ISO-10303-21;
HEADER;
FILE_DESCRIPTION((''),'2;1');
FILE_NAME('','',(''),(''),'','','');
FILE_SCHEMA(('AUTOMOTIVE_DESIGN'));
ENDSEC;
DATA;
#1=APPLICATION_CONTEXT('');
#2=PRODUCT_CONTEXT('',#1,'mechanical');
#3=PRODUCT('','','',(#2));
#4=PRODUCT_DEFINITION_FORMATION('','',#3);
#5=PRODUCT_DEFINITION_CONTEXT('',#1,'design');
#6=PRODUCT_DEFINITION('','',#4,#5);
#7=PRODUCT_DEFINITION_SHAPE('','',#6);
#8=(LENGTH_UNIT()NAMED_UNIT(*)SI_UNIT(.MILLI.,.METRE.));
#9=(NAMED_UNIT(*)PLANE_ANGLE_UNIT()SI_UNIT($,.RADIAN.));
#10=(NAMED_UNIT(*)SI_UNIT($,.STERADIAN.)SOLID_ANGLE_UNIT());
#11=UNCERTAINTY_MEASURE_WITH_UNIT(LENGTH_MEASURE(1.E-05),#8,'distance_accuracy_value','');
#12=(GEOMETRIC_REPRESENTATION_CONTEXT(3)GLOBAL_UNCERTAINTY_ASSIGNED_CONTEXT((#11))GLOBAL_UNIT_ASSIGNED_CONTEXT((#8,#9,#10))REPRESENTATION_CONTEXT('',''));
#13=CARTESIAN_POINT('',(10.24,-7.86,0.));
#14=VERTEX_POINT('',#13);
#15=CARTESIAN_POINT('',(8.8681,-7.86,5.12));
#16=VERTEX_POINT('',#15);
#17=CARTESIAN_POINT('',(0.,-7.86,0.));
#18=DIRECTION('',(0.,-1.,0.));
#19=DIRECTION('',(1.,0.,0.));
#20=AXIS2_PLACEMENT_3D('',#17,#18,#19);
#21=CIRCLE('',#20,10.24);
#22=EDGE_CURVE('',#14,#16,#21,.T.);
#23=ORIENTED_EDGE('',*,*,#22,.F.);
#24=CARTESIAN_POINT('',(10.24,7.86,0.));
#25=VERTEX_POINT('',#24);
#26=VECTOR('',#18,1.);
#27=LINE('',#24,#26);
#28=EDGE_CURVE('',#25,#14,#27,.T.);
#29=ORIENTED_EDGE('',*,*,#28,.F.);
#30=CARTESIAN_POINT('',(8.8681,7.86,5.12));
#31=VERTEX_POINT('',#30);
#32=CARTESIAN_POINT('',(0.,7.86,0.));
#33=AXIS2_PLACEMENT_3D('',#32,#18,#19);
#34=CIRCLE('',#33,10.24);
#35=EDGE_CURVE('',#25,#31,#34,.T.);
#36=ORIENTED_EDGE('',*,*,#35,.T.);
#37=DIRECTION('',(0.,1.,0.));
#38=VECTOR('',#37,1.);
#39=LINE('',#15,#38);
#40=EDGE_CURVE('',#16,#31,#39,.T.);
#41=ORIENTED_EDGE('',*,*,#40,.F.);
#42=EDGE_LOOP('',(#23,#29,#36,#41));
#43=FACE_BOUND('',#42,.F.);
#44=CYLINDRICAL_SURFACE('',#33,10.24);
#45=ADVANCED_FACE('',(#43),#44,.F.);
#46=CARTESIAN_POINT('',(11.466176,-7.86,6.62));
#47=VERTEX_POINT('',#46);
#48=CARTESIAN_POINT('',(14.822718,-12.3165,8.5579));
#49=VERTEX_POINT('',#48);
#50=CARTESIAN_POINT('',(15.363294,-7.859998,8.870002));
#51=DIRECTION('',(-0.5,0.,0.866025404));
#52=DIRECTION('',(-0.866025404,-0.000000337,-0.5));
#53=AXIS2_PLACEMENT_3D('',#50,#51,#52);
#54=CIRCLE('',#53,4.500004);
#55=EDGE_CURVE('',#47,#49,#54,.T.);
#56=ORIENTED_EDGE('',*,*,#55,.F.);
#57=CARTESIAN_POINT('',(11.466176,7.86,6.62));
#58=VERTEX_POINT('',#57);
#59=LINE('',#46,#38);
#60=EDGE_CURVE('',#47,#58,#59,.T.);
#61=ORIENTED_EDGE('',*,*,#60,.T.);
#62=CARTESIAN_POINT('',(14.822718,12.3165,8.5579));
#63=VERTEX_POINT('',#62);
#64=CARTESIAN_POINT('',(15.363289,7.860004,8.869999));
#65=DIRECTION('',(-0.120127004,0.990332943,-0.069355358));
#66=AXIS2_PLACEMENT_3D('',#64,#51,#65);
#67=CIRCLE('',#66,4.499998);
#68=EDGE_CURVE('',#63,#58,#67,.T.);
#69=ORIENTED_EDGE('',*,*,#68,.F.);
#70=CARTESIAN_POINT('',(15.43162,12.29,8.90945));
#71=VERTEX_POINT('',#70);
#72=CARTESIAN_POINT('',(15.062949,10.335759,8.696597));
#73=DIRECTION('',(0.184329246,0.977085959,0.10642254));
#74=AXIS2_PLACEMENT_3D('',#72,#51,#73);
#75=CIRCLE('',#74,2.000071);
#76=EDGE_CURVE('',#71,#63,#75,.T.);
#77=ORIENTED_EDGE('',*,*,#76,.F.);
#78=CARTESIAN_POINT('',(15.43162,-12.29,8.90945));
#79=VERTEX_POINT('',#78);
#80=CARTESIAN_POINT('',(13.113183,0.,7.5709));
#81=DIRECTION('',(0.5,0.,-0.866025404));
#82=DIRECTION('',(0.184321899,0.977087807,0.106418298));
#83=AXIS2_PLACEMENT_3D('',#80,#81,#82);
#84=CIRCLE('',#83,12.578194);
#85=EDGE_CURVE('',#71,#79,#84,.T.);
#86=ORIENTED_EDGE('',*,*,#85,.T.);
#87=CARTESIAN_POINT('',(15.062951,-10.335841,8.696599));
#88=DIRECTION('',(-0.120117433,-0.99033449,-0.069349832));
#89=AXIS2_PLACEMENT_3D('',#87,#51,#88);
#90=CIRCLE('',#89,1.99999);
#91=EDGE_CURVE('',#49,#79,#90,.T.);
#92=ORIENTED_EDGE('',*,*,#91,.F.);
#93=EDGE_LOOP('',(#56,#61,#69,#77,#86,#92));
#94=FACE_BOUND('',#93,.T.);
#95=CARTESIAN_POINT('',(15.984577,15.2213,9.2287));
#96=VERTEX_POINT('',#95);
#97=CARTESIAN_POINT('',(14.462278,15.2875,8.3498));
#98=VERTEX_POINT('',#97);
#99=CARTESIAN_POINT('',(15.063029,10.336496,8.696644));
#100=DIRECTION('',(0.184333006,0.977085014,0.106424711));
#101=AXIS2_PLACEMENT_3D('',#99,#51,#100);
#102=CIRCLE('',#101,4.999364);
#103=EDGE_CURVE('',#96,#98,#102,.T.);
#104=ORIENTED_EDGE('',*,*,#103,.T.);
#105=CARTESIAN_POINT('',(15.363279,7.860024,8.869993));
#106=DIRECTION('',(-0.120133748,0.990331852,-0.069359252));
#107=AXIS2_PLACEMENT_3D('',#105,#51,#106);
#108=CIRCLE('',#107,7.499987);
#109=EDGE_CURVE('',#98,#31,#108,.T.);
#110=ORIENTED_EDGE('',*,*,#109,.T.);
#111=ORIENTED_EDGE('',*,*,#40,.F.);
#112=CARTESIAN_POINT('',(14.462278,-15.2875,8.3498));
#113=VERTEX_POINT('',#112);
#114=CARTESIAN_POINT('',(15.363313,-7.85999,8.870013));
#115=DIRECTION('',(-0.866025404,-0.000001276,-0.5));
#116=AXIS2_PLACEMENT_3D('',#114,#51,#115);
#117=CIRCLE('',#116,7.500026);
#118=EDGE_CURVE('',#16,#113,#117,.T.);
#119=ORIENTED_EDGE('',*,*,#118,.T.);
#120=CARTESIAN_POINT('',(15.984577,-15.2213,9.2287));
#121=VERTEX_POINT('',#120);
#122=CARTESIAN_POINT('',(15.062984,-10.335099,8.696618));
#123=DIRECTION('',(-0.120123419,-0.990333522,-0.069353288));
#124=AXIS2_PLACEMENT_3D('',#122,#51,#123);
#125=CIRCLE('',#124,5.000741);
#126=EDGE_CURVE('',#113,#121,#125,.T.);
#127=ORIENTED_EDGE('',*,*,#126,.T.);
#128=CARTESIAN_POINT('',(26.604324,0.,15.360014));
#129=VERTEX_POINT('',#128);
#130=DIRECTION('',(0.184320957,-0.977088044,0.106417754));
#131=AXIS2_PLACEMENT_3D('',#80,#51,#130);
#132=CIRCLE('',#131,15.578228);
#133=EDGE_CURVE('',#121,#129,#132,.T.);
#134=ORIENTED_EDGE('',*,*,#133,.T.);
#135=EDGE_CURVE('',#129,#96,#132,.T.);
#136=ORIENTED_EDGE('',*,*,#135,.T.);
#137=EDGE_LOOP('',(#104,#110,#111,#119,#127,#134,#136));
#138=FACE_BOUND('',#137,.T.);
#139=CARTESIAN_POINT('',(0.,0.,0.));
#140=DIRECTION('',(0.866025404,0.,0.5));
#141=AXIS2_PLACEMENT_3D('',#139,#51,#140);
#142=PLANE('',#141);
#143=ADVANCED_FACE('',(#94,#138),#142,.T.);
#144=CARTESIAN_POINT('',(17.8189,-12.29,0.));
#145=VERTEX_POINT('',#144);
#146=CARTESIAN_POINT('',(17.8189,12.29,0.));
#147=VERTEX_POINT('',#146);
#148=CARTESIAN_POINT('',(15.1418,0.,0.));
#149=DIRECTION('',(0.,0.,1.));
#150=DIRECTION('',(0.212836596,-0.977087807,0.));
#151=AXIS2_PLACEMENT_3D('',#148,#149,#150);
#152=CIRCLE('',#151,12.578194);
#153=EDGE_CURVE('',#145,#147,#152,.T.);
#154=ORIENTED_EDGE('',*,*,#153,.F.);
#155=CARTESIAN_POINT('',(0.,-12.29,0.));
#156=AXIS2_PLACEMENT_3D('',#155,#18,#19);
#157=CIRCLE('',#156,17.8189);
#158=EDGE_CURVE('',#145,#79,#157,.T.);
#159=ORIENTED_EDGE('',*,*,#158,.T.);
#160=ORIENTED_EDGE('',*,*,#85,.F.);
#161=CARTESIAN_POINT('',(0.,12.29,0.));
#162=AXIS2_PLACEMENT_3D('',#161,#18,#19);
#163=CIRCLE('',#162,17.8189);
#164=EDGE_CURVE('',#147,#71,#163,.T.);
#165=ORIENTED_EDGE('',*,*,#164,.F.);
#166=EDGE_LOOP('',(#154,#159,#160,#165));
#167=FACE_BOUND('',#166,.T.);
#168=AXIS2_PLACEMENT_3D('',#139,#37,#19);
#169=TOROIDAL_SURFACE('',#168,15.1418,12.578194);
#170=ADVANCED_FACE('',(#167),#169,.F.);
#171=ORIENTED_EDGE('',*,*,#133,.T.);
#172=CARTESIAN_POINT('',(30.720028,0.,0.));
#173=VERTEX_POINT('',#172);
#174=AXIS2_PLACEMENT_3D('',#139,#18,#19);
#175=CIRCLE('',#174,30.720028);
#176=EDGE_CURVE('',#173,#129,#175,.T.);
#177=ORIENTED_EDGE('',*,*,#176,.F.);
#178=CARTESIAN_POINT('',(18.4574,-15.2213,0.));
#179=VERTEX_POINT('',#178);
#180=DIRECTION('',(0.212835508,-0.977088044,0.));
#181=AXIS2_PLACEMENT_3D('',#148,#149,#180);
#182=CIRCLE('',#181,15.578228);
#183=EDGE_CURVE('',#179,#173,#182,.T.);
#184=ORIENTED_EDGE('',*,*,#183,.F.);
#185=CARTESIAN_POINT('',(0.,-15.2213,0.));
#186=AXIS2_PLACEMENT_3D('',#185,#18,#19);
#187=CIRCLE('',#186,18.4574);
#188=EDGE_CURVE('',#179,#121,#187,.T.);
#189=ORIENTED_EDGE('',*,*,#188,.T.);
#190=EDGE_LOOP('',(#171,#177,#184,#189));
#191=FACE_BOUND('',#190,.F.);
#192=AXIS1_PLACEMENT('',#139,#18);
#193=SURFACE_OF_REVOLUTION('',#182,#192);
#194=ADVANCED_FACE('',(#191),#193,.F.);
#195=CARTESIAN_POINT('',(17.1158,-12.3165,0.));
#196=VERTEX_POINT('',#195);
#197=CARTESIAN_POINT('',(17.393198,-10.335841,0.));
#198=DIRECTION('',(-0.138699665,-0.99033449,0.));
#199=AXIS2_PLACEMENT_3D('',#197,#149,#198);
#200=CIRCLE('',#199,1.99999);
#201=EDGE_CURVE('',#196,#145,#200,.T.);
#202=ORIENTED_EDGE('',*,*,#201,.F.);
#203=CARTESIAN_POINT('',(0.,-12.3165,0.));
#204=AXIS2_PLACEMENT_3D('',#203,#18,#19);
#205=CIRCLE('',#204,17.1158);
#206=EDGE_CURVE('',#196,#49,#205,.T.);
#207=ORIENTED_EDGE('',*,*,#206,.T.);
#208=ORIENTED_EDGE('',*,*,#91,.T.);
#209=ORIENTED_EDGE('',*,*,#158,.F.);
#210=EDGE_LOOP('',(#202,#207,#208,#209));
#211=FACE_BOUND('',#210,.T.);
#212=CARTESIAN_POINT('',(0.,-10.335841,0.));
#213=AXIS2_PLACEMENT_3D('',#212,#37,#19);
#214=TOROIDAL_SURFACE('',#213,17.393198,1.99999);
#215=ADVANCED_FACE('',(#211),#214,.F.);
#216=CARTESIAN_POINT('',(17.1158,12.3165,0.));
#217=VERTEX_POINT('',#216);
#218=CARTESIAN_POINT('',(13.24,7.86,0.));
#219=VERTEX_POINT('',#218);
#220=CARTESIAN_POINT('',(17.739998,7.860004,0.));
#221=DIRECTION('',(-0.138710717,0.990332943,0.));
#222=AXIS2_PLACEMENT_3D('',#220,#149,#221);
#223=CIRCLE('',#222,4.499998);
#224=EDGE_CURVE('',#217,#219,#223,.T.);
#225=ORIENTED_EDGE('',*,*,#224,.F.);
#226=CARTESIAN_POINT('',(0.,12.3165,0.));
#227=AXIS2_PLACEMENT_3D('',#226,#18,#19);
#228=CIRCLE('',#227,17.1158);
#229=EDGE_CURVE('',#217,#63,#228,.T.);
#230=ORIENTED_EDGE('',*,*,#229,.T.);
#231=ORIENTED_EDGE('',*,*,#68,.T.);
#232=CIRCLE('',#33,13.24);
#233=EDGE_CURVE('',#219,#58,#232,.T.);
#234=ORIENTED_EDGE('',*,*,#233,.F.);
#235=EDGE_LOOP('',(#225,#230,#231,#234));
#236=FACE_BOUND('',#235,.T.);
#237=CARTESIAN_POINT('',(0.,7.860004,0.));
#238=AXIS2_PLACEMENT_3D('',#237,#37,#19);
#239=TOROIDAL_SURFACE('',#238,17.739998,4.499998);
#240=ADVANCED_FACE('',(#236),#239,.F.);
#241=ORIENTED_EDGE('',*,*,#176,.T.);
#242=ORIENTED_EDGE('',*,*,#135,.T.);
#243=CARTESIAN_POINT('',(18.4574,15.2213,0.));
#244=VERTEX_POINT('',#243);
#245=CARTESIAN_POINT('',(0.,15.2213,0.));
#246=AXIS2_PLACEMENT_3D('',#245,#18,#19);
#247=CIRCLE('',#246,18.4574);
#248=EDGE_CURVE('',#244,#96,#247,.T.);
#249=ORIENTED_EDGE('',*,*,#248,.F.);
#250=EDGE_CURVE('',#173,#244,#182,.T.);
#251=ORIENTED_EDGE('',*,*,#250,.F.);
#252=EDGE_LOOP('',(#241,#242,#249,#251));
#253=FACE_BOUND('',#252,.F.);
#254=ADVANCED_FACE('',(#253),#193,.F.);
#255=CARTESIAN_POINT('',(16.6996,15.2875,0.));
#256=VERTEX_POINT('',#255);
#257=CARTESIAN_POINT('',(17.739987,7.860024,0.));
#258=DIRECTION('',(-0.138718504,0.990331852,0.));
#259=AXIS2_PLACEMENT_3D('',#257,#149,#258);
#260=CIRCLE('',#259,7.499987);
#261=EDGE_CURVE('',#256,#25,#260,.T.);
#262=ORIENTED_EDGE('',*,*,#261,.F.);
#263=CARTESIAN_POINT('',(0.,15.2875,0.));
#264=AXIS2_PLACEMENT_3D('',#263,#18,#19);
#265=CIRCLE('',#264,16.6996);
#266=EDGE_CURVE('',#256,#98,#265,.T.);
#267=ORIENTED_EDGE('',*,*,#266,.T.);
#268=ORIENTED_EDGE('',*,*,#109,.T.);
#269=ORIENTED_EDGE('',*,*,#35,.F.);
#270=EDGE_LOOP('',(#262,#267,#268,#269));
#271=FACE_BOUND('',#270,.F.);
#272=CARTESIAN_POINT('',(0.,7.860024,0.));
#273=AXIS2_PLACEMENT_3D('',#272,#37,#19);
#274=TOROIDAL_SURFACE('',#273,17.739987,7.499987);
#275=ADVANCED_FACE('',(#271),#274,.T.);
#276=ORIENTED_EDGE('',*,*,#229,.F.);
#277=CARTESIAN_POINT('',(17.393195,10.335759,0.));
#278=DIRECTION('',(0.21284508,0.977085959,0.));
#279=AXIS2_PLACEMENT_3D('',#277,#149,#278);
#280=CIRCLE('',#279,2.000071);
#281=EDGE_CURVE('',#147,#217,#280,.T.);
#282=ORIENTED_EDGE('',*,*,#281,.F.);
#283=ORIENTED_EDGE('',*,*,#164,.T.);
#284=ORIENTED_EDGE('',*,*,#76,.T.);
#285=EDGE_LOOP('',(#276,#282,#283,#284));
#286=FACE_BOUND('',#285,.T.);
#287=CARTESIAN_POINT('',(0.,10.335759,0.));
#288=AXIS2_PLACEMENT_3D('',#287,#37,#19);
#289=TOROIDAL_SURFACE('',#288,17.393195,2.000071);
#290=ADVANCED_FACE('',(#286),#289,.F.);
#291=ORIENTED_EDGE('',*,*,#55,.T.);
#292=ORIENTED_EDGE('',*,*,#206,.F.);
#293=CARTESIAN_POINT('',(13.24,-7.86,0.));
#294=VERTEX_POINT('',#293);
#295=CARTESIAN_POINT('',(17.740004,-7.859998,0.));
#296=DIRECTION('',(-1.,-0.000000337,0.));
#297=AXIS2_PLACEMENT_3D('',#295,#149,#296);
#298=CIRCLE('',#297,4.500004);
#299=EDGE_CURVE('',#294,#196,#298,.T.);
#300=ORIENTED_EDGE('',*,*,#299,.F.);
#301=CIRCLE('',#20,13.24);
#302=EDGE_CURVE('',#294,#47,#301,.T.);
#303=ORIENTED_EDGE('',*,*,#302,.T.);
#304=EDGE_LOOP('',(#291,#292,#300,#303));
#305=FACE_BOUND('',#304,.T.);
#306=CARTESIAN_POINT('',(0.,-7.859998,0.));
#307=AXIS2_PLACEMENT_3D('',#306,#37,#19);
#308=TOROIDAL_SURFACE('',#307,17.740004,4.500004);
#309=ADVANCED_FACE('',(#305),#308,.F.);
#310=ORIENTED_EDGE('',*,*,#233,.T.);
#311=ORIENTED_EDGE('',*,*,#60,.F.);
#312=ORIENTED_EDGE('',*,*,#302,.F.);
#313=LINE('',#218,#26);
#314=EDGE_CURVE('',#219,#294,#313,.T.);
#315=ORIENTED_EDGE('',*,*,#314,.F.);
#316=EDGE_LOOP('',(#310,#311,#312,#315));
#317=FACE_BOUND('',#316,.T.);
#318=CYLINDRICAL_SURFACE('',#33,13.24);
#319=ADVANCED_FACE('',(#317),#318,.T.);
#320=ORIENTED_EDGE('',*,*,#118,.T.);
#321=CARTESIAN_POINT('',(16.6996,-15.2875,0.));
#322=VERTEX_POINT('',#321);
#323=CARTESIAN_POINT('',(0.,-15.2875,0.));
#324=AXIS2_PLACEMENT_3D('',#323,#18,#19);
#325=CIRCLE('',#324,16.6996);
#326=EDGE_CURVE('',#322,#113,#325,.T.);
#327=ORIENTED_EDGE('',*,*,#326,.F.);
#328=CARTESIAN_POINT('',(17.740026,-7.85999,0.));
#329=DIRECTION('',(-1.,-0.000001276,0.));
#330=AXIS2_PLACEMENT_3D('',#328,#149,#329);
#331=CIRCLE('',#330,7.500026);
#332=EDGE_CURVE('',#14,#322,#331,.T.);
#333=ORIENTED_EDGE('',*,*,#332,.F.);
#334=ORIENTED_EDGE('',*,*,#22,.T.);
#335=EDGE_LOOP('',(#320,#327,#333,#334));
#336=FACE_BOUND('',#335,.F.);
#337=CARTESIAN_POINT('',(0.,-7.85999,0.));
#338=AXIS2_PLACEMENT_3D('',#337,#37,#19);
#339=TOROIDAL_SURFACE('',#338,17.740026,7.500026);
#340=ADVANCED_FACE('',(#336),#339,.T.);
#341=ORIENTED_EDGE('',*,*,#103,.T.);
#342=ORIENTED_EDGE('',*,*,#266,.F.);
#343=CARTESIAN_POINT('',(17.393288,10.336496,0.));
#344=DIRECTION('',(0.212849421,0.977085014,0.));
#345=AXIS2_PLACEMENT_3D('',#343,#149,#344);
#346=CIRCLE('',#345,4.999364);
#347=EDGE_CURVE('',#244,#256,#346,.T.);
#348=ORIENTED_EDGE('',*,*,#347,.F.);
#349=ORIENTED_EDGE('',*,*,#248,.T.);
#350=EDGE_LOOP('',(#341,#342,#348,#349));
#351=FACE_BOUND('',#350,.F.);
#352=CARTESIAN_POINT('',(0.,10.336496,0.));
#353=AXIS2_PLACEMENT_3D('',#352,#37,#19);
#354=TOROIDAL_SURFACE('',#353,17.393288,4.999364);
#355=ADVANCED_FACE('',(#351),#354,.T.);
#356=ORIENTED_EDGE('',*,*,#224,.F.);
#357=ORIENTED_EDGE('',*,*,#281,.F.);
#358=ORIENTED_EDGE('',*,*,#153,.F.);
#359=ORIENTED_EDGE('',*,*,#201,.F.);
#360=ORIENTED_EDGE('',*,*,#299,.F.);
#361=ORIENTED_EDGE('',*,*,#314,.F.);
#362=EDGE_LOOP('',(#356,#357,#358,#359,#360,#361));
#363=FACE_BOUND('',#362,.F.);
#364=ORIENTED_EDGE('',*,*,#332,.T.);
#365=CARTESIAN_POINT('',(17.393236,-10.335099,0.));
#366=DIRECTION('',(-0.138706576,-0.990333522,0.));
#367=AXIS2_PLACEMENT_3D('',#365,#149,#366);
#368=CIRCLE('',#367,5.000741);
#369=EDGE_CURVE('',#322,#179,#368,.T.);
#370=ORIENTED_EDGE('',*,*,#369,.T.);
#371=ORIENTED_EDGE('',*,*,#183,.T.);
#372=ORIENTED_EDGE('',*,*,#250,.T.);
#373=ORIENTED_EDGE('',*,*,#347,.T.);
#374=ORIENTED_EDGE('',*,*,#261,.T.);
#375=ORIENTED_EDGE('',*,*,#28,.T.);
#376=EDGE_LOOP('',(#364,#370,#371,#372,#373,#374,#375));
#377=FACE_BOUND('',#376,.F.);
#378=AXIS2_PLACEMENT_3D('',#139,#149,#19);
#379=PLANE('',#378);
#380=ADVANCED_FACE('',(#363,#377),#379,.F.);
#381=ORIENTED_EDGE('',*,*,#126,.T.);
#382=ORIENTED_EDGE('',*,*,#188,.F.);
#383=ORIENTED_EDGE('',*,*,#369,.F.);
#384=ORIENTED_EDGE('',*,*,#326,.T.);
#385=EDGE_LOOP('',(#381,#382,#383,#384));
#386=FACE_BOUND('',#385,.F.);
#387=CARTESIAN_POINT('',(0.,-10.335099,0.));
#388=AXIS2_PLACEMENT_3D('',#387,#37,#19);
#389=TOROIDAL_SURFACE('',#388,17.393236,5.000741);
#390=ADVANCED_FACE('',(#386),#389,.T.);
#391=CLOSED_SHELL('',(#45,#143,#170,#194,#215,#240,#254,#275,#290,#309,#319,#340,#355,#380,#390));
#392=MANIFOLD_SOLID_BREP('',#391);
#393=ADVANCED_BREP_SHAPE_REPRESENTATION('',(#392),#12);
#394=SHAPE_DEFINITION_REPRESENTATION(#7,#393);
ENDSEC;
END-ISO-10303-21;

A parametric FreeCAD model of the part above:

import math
import FreeCAD as App
import Part
import Sketcher
from FreeCAD import Vector
Q = App.Units.Quantity

doc = App.newDocument("Part")
body = doc.addObject("PartDesign::Body", "Body")

sketch1 = body.newObject("Sketcher::SketchObject", "Sketch")
sketch1.AttachmentSupport = (doc.getObject("XY_Plane"), [""])
sketch1.MapMode = "FlatFace"
sketch1.addGeometry([
    Part.ArcOfCircle(Part.Circle(Vector(17.7, 7.9, 0), Vector(0, 0, 1), 7.5), math.radians(98), math.radians(180)),
    Part.LineSegment(Vector(10.2, 7.9, 0), Vector(10.2, -7.9, 0)),
    Part.ArcOfCircle(Part.Circle(Vector(17.7, -7.9, 0), Vector(0, 0, 1), 7.5), math.radians(180), math.radians(262)),
    Part.ArcOfCircle(Part.Circle(Vector(17.4, -10.3, 0), Vector(0, 0, 1), 5), math.radians(-98), math.radians(-78)),
    Part.ArcOfCircle(Part.Circle(Vector(15.1, 0, 0), Vector(0, 0, 1), 15.6), math.radians(-78), math.radians(78)),
    Part.ArcOfCircle(Part.Circle(Vector(17.4, 10.3, 0), Vector(0, 0, 1), 5), math.radians(78), math.radians(98)),
    Part.ArcOfCircle(Part.Circle(Vector(15.1, 0, 0), Vector(0, 0, 1), 12.6), math.radians(-78), math.radians(78)),
    Part.ArcOfCircle(Part.Circle(Vector(17.4, -10.3, 0), Vector(0, 0, 1), 2), math.radians(-98), math.radians(-78)),
    Part.ArcOfCircle(Part.Circle(Vector(17.7, -7.9, 0), Vector(0, 0, 1), 4.5), math.radians(180), math.radians(262)),
    Part.LineSegment(Vector(13.2, -7.9, 0), Vector(13.2, 7.9, 0)),
    Part.ArcOfCircle(Part.Circle(Vector(17.7, 7.9, 0), Vector(0, 0, 1), 4.5), math.radians(98), math.radians(180)),
    Part.ArcOfCircle(Part.Circle(Vector(17.4, 10.3, 0), Vector(0, 0, 1), 2), math.radians(78), math.radians(98)),
], False)
sketch1.addConstraint([
    Sketcher.Constraint("Tangent", 0, 2, 1, 1),
    Sketcher.Constraint("Tangent", 1, 2, 2, 1),
    Sketcher.Constraint("Tangent", 2, 2, 3, 1),
    Sketcher.Constraint("Tangent", 3, 2, 4, 1),
    Sketcher.Constraint("Tangent", 4, 2, 5, 1),
    Sketcher.Constraint("Tangent", 5, 2, 0, 1),
    Sketcher.Constraint("Tangent", 6, 1, 7, 2),
    Sketcher.Constraint("Tangent", 7, 1, 8, 2),
    Sketcher.Constraint("Tangent", 8, 1, 9, 1),
    Sketcher.Constraint("Tangent", 9, 2, 10, 2),
    Sketcher.Constraint("Tangent", 10, 1, 11, 2),
    Sketcher.Constraint("Tangent", 11, 1, 6, 2),
    Sketcher.Constraint("Vertical", 1),
    Sketcher.Constraint("Vertical", 9),
    Sketcher.Constraint("Coincident", 6, 3, 4, 3),
    Sketcher.Constraint("Coincident", 7, 3, 3, 3),
    Sketcher.Constraint("Coincident", 8, 3, 2, 3),
    Sketcher.Constraint("Coincident", 10, 3, 0, 3),
    Sketcher.Constraint("Equal", 0, 2),
    Sketcher.Constraint("Equal", 3, 5),
    Sketcher.Constraint("Equal", 7, 11),
    Sketcher.Constraint("Symmetric", 3, 3, 5, 3, -1),
    Sketcher.Constraint("Radius", 3, Q("5 mm")),
    Sketcher.Constraint("Radius", 7, Q("2 mm")),
    Sketcher.Constraint("DistanceY", 1, 2, 1, 1, Q("15.72 mm")),
    Sketcher.Constraint("Radius", 0, Q("7.5 mm")),
    Sketcher.Constraint("DistanceX", -1, 1, 0, 3, Q("17.74 mm")),
    Sketcher.Constraint("Radius", 4, Q("15.5782 mm")),
    Sketcher.Constraint("DistanceY", 6, 1, -1, 1, Q("12.29 mm")),
])
revolution = body.newObject("PartDesign::Revolution", "Revolution")
revolution.Profile = sketch1
revolution.ReferenceAxis = (sketch1, ["V_Axis"])
revolution.Angle = 30
revolution.Reversed = True

doc.recompute()
